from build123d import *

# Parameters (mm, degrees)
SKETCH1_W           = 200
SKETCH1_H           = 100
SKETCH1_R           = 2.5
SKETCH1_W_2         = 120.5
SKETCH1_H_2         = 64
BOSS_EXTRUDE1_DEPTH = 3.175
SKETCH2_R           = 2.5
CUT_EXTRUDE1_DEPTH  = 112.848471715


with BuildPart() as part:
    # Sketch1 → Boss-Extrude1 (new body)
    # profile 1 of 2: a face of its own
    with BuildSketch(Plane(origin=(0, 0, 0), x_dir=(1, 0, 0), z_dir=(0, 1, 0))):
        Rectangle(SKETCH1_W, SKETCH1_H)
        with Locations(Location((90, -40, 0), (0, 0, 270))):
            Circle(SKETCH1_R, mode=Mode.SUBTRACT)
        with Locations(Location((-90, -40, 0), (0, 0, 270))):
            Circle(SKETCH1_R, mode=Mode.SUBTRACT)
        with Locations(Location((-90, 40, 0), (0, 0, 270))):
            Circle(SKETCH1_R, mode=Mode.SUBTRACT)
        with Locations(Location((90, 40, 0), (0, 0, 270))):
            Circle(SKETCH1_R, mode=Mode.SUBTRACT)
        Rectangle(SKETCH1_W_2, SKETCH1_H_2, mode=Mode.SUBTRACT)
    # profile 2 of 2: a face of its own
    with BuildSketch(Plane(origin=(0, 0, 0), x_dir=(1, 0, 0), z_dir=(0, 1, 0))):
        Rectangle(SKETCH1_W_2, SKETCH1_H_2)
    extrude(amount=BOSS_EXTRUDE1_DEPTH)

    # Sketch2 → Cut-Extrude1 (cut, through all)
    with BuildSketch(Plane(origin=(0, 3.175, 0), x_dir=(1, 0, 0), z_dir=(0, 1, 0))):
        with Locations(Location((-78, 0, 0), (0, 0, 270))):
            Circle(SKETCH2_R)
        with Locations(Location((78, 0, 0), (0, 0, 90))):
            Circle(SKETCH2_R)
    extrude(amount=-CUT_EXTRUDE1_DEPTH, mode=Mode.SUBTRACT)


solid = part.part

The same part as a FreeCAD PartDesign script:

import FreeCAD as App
import Part
import Sketcher
from FreeCAD import Vector
Q = App.Units.Quantity


def add_polygon(sketch, points):
    """Adds a closed chain of lines whose ends are joined by coincident constraints."""
    first, n = sketch.GeometryCount, len(points)
    for a, b in zip(points, points[1:] + points[:1]):
        sketch.addGeometry(Part.LineSegment(App.Vector(*a, 0), App.Vector(*b, 0)), False)
    for i in range(n):
        sketch.addConstraint(Sketcher.Constraint("Coincident", first + i, 2, first + (i + 1) % n, 1))

doc = App.newDocument("Part")
body = doc.addObject("PartDesign::Body", "Body")

sketch1 = body.newObject("Sketcher::SketchObject", "Sketch")
sketch1.AttachmentSupport = (doc.getObject("XZ_Plane"), [""])
sketch1.MapMode = "FlatFace"
add_polygon(sketch1, [(-100, -50), (-100, 50), (100, 50), (100, -50)])
sketch1.addGeometry(Part.Circle(Vector(-90, 40, 0), Vector(0, 0, 1), 2.5), False)
sketch1.addGeometry(Part.Circle(Vector(90, 40, 0), Vector(0, 0, 1), 2.5), False)
sketch1.addGeometry(Part.Circle(Vector(-90, -40, 0), Vector(0, 0, 1), 2.5), False)
sketch1.addGeometry(Part.Circle(Vector(90, -40, 0), Vector(0, 0, 1), 2.5), False)
sketch1.addConstraint([
    Sketcher.Constraint("Vertical", 0),
    Sketcher.Constraint("Horizontal", 1),
    Sketcher.Constraint("Vertical", 2),
    Sketcher.Constraint("Horizontal", 3),
    Sketcher.Constraint("Equal", 4, 5),
    Sketcher.Constraint("Equal", 5, 6),
    Sketcher.Constraint("Equal", 6, 7),
    Sketcher.Constraint("Symmetric", 5, 3, 6, 3, -1, 1),
    Sketcher.Constraint("Symmetric", 4, 3, 7, 3, -1, 1),
    Sketcher.Constraint("Symmetric", 0, 2, 2, 2, -1, 1),
    Sketcher.Constraint("Symmetric", 4, 3, 5, 3, -2),
    Sketcher.Constraint("Diameter", 4, Q("5 mm")),
    Sketcher.Constraint("DistanceX", 1, 1, 1, 2, Q("200 mm")),
    Sketcher.Constraint("DistanceY", 0, 1, 0, 2, Q("100 mm")),
    Sketcher.Constraint("DistanceX", 4, 3, -1, 1, Q("90 mm")),
    Sketcher.Constraint("DistanceY", -1, 1, 4, 3, Q("40 mm")),
])
pad1 = body.newObject("PartDesign::Pad", "Pad")
pad1.Profile = sketch1
pad1.Length = 3.175
pad1.Reversed = True

sketch2 = body.newObject("Sketcher::SketchObject", "Sketch001")
sketch2.AttachmentSupport = (doc.getObject("XZ_Plane"), [""])
sketch2.MapMode = "FlatFace"
sketch2.AttachmentOffset = App.Placement(Vector(0, 0, -3.175), App.Rotation())
sketch2.addGeometry([
    Part.Circle(Vector(-78, 0, 0), Vector(0, 0, 1), 2.5),
    Part.Circle(Vector(78, 0, 0), Vector(0, 0, 1), 2.5),
], False)
sketch2.addConstraint([
    Sketcher.Constraint("Equal", 0, 1),
    Sketcher.Constraint("Symmetric", 0, 3, 1, 3, -1, 1),
    Sketcher.Constraint("PointOnObject", 0, 3, -1),
    Sketcher.Constraint("Diameter", 0, Q("5 mm")),
    Sketcher.Constraint("DistanceX", 0, 3, -1, 1, Q("78 mm")),
])
pocket1 = body.newObject("PartDesign::Pocket", "Pocket")
pocket1.Profile = sketch2
pocket1.Type = "ThroughAll"
pocket1.Reversed = True

doc.recompute()
